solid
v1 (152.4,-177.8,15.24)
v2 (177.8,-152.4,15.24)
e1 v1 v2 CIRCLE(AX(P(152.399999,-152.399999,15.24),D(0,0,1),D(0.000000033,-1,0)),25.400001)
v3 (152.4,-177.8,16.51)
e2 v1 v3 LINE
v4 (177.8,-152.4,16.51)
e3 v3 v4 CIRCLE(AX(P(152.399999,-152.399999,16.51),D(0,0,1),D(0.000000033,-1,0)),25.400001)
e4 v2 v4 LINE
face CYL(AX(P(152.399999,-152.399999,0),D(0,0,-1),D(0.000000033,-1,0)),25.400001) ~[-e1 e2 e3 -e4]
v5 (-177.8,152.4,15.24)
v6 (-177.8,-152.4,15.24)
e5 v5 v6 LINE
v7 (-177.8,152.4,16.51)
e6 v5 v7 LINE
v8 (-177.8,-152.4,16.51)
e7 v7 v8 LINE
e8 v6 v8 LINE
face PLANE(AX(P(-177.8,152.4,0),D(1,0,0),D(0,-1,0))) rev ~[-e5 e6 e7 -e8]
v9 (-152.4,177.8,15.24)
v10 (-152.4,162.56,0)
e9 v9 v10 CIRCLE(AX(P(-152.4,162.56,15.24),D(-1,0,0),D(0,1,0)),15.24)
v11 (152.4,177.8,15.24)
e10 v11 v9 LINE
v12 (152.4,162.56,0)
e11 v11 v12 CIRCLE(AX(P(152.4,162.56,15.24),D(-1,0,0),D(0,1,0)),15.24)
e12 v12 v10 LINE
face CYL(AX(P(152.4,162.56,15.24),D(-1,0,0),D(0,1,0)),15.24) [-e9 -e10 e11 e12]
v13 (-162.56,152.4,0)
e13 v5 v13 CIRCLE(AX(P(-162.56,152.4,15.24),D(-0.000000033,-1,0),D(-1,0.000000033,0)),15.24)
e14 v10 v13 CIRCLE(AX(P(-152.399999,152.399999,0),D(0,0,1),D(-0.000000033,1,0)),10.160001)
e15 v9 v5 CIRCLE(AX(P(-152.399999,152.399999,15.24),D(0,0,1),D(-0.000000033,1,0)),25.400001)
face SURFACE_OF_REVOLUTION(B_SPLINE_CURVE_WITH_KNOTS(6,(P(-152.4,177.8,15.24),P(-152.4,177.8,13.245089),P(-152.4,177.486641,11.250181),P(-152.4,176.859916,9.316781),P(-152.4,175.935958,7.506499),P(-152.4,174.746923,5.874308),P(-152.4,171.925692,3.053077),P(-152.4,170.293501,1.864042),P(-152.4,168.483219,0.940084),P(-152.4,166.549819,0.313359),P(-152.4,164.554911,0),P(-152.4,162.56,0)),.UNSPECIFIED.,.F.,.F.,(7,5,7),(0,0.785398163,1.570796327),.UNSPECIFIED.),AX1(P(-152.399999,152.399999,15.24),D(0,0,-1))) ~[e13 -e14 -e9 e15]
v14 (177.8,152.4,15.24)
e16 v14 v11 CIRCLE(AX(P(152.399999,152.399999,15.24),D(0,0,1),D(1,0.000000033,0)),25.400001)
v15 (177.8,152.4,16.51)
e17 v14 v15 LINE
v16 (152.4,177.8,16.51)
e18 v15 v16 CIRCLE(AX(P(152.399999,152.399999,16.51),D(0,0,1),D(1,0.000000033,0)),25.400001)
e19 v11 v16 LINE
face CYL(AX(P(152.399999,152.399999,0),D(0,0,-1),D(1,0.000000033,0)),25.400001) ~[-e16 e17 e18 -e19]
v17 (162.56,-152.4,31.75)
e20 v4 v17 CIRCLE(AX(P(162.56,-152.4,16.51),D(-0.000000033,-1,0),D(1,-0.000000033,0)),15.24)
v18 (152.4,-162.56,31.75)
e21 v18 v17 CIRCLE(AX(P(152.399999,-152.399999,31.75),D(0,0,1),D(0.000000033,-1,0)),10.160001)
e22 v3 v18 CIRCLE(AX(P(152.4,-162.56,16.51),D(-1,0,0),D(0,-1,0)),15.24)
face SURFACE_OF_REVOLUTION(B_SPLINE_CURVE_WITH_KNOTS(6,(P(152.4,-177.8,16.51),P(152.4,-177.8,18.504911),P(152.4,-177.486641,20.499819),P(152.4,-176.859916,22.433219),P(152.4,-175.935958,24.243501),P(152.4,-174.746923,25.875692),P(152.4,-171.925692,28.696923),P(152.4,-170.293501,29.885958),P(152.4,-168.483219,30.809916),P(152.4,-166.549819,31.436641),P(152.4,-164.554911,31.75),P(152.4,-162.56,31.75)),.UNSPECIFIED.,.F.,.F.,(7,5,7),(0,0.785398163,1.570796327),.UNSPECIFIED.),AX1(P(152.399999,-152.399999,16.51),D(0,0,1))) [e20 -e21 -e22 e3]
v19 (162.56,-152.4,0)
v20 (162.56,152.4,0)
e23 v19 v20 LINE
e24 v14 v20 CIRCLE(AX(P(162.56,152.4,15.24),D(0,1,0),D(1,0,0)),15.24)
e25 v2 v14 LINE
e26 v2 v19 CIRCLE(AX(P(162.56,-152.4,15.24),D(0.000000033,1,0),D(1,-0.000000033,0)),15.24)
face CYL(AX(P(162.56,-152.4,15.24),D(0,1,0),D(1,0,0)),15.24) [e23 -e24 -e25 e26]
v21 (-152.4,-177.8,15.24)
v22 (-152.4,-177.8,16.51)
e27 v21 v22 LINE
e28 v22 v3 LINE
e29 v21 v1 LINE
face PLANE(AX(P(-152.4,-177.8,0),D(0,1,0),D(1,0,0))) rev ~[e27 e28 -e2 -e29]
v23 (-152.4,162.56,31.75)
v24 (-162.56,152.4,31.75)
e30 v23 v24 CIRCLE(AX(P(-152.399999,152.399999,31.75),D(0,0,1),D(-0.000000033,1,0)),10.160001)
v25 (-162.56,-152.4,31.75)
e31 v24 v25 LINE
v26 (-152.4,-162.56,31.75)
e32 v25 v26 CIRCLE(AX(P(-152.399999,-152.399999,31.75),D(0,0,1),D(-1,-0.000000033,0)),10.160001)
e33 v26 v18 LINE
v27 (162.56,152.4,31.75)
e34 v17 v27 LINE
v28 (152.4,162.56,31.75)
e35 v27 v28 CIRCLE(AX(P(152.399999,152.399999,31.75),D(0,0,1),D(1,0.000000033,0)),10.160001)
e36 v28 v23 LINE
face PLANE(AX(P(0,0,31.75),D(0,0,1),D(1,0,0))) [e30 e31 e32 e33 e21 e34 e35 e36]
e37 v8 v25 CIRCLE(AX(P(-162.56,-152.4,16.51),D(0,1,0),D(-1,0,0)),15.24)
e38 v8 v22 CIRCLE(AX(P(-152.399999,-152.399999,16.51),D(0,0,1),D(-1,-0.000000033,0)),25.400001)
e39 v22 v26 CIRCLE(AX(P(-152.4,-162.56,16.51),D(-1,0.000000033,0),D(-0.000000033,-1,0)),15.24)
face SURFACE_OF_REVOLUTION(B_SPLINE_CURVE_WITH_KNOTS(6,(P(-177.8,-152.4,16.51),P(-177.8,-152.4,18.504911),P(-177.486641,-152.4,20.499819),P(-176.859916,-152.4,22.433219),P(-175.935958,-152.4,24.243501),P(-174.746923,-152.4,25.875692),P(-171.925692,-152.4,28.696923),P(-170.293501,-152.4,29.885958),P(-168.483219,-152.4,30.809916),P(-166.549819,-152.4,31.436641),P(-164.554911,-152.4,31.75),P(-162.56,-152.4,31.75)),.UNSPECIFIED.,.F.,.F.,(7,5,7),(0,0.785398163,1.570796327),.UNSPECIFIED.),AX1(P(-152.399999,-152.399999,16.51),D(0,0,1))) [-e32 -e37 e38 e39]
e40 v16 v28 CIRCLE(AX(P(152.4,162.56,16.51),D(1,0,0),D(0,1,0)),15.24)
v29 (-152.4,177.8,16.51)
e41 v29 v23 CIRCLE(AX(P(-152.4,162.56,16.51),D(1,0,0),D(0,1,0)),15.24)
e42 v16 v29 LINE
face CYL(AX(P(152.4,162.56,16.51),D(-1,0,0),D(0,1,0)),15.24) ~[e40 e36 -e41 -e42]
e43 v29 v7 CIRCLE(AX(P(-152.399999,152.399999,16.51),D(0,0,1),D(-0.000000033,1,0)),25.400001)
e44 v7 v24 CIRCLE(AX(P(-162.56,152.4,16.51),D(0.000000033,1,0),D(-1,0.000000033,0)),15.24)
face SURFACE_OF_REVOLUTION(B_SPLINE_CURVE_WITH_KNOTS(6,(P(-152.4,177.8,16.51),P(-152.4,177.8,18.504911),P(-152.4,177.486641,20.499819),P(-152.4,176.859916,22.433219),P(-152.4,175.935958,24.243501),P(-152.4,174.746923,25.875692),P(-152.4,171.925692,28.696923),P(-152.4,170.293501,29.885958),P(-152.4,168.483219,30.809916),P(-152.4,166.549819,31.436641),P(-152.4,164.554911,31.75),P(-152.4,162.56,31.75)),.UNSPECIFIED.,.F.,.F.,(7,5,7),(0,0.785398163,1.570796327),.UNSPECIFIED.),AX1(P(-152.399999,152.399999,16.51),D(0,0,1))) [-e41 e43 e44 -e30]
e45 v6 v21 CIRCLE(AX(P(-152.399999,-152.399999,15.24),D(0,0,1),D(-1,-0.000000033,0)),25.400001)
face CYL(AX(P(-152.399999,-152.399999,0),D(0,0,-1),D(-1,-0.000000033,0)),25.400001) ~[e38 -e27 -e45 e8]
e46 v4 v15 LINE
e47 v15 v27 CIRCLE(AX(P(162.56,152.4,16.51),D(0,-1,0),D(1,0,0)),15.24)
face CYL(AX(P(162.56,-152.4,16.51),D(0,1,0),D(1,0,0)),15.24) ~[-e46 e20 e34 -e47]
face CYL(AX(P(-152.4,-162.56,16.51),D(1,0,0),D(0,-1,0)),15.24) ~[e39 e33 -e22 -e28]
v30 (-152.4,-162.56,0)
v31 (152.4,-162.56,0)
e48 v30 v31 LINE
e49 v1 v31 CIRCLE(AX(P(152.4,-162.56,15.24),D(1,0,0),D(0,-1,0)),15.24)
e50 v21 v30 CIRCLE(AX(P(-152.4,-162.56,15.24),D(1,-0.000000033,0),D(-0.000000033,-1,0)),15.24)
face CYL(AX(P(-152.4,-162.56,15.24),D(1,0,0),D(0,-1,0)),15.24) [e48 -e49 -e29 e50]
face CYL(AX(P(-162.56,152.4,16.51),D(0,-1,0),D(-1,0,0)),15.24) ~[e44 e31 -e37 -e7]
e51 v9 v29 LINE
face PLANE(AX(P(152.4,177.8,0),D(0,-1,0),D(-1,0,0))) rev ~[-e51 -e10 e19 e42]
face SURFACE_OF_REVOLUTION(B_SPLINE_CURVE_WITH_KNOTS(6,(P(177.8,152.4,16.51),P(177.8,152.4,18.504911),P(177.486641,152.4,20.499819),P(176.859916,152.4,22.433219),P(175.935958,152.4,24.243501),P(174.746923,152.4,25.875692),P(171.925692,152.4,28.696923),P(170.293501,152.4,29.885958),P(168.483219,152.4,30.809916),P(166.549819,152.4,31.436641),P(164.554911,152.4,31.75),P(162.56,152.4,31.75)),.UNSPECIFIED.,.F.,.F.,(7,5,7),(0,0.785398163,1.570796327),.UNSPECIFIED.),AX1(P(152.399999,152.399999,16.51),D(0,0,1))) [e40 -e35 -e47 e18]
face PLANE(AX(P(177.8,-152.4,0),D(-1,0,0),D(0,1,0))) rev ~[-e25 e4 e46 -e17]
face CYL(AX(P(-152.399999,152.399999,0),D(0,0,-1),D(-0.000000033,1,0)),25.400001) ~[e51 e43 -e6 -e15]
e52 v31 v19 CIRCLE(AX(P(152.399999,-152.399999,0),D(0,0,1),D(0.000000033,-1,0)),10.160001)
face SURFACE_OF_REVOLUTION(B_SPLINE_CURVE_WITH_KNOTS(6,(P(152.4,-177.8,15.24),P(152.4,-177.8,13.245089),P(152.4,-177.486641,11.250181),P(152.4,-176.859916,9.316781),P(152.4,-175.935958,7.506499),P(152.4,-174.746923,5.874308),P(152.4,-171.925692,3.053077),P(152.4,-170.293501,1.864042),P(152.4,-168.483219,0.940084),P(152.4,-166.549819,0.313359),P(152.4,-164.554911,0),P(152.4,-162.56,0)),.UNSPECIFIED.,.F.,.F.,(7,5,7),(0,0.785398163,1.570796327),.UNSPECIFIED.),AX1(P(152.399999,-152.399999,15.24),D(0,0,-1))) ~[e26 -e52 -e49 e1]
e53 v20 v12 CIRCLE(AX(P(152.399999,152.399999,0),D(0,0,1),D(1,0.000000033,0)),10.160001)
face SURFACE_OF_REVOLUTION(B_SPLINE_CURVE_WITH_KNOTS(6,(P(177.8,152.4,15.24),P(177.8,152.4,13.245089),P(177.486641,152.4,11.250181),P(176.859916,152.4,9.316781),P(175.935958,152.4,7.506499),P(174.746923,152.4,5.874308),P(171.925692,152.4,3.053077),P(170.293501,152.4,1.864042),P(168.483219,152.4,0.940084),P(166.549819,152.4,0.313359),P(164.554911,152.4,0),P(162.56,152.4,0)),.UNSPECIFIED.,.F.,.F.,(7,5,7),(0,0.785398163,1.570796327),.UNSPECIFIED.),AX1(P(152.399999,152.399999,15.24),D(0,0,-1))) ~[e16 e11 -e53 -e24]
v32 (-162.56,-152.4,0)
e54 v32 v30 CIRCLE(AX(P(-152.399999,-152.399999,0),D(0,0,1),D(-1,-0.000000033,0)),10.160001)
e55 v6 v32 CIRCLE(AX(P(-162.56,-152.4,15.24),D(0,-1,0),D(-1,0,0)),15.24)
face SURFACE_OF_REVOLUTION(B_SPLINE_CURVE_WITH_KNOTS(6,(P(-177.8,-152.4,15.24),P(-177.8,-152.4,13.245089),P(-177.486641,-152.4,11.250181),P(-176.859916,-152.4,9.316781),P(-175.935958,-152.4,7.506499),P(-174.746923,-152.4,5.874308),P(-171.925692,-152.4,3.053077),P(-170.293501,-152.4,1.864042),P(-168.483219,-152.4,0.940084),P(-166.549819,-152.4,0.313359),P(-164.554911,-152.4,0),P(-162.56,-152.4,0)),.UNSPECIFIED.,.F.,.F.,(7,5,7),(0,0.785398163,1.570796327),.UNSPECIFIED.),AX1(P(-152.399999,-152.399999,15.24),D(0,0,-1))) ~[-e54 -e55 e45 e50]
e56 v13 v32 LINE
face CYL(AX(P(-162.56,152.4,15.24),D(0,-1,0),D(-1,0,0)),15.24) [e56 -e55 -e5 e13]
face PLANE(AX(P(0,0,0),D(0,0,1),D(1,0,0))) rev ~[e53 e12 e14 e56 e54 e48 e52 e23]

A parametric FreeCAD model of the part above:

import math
import FreeCAD as App
import Part
import Sketcher

V = App.Vector
Q = App.Units.Quantity

doc = App.newDocument("Part")
body = doc.addObject("PartDesign::Body", "Body")

sketch1 = doc.addObject("Sketcher::SketchObject", "Sketch")
body.addObject(sketch1)
sketch1.AttachmentSupport = (doc.XY_Plane, [""])
sketch1.MapMode = "FlatFace"
sketch1.addGeometry([
    Part.LineSegment(V(152.4, 177.8, 0), V(-152.4, 177.8, 0)),
    Part.ArcOfCircle(Part.Circle(V(-152.399999, 152.399999, 0), V(0, 0, 1), 25.400001), math.radians(90.000002), math.radians(179.999998)),
    Part.LineSegment(V(-177.8, 152.4, 0), V(-177.8, -152.4, 0)),
    Part.ArcOfCircle(Part.Circle(V(-152.399999, -152.399999, 0), V(0, 0, 1), 25.400001), math.radians(-179.999998), math.radians(-90.000002)),
    Part.LineSegment(V(-152.4, -177.8, 0), V(152.4, -177.8, 0)),
    Part.ArcOfCircle(Part.Circle(V(152.399999, -152.399999, 0), V(0, 0, 1), 25.400001), math.radians(-89.999998), math.radians(-0.000002)),
    Part.LineSegment(V(177.8, -152.4, 0), V(177.8, 152.4, 0)),
    Part.ArcOfCircle(Part.Circle(V(152.399999, 152.399999, 0), V(0, 0, 1), 25.400001), math.radians(0.000002), math.radians(89.999998)),
], False)
sketch1.addConstraint([
    Sketcher.Constraint("Tangent", 0, 2, 1, 1),
    Sketcher.Constraint("Tangent", 1, 2, 2, 1),
    Sketcher.Constraint("Tangent", 2, 2, 3, 1),
    Sketcher.Constraint("Tangent", 3, 2, 4, 1),
    Sketcher.Constraint("Tangent", 4, 2, 5, 1),
    Sketcher.Constraint("Tangent", 5, 2, 6, 1),
    Sketcher.Constraint("Tangent", 6, 2, 7, 1),
    Sketcher.Constraint("Tangent", 7, 2, 0, 1),
    Sketcher.Constraint("Horizontal", 0),
    Sketcher.Constraint("Vertical", 2),
    Sketcher.Constraint("Horizontal", 4),
    Sketcher.Constraint("Vertical", 6),
    Sketcher.Constraint("Equal", 1, 3),
    Sketcher.Constraint("Equal", 3, 5),
    Sketcher.Constraint("Equal", 5, 7),
    Sketcher.Constraint("Symmetric", 1, 3, 5, 3, -1, 1),
    Sketcher.Constraint("Equal", 4, 2),
    Sketcher.Constraint("Radius", 1, Q("1 in")),
    Sketcher.Constraint("DistanceX", 0, 2, 0, 1, Q("12 in")),
])
pad1 = doc.addObject("PartDesign::Pad", "Pad")
body.addObject(pad1)
pad1.Profile = sketch1
pad1.Length = Q("1.25 in")
doc.recompute()

fillet = doc.addObject("PartDesign::Fillet", "Fillet")
body.addObject(fillet)
fillet.Base = (pad1, ["Edge1"])
fillet.UseAllEdges = True
fillet.Radius = Q("0.6 in")

doc.recompute()
